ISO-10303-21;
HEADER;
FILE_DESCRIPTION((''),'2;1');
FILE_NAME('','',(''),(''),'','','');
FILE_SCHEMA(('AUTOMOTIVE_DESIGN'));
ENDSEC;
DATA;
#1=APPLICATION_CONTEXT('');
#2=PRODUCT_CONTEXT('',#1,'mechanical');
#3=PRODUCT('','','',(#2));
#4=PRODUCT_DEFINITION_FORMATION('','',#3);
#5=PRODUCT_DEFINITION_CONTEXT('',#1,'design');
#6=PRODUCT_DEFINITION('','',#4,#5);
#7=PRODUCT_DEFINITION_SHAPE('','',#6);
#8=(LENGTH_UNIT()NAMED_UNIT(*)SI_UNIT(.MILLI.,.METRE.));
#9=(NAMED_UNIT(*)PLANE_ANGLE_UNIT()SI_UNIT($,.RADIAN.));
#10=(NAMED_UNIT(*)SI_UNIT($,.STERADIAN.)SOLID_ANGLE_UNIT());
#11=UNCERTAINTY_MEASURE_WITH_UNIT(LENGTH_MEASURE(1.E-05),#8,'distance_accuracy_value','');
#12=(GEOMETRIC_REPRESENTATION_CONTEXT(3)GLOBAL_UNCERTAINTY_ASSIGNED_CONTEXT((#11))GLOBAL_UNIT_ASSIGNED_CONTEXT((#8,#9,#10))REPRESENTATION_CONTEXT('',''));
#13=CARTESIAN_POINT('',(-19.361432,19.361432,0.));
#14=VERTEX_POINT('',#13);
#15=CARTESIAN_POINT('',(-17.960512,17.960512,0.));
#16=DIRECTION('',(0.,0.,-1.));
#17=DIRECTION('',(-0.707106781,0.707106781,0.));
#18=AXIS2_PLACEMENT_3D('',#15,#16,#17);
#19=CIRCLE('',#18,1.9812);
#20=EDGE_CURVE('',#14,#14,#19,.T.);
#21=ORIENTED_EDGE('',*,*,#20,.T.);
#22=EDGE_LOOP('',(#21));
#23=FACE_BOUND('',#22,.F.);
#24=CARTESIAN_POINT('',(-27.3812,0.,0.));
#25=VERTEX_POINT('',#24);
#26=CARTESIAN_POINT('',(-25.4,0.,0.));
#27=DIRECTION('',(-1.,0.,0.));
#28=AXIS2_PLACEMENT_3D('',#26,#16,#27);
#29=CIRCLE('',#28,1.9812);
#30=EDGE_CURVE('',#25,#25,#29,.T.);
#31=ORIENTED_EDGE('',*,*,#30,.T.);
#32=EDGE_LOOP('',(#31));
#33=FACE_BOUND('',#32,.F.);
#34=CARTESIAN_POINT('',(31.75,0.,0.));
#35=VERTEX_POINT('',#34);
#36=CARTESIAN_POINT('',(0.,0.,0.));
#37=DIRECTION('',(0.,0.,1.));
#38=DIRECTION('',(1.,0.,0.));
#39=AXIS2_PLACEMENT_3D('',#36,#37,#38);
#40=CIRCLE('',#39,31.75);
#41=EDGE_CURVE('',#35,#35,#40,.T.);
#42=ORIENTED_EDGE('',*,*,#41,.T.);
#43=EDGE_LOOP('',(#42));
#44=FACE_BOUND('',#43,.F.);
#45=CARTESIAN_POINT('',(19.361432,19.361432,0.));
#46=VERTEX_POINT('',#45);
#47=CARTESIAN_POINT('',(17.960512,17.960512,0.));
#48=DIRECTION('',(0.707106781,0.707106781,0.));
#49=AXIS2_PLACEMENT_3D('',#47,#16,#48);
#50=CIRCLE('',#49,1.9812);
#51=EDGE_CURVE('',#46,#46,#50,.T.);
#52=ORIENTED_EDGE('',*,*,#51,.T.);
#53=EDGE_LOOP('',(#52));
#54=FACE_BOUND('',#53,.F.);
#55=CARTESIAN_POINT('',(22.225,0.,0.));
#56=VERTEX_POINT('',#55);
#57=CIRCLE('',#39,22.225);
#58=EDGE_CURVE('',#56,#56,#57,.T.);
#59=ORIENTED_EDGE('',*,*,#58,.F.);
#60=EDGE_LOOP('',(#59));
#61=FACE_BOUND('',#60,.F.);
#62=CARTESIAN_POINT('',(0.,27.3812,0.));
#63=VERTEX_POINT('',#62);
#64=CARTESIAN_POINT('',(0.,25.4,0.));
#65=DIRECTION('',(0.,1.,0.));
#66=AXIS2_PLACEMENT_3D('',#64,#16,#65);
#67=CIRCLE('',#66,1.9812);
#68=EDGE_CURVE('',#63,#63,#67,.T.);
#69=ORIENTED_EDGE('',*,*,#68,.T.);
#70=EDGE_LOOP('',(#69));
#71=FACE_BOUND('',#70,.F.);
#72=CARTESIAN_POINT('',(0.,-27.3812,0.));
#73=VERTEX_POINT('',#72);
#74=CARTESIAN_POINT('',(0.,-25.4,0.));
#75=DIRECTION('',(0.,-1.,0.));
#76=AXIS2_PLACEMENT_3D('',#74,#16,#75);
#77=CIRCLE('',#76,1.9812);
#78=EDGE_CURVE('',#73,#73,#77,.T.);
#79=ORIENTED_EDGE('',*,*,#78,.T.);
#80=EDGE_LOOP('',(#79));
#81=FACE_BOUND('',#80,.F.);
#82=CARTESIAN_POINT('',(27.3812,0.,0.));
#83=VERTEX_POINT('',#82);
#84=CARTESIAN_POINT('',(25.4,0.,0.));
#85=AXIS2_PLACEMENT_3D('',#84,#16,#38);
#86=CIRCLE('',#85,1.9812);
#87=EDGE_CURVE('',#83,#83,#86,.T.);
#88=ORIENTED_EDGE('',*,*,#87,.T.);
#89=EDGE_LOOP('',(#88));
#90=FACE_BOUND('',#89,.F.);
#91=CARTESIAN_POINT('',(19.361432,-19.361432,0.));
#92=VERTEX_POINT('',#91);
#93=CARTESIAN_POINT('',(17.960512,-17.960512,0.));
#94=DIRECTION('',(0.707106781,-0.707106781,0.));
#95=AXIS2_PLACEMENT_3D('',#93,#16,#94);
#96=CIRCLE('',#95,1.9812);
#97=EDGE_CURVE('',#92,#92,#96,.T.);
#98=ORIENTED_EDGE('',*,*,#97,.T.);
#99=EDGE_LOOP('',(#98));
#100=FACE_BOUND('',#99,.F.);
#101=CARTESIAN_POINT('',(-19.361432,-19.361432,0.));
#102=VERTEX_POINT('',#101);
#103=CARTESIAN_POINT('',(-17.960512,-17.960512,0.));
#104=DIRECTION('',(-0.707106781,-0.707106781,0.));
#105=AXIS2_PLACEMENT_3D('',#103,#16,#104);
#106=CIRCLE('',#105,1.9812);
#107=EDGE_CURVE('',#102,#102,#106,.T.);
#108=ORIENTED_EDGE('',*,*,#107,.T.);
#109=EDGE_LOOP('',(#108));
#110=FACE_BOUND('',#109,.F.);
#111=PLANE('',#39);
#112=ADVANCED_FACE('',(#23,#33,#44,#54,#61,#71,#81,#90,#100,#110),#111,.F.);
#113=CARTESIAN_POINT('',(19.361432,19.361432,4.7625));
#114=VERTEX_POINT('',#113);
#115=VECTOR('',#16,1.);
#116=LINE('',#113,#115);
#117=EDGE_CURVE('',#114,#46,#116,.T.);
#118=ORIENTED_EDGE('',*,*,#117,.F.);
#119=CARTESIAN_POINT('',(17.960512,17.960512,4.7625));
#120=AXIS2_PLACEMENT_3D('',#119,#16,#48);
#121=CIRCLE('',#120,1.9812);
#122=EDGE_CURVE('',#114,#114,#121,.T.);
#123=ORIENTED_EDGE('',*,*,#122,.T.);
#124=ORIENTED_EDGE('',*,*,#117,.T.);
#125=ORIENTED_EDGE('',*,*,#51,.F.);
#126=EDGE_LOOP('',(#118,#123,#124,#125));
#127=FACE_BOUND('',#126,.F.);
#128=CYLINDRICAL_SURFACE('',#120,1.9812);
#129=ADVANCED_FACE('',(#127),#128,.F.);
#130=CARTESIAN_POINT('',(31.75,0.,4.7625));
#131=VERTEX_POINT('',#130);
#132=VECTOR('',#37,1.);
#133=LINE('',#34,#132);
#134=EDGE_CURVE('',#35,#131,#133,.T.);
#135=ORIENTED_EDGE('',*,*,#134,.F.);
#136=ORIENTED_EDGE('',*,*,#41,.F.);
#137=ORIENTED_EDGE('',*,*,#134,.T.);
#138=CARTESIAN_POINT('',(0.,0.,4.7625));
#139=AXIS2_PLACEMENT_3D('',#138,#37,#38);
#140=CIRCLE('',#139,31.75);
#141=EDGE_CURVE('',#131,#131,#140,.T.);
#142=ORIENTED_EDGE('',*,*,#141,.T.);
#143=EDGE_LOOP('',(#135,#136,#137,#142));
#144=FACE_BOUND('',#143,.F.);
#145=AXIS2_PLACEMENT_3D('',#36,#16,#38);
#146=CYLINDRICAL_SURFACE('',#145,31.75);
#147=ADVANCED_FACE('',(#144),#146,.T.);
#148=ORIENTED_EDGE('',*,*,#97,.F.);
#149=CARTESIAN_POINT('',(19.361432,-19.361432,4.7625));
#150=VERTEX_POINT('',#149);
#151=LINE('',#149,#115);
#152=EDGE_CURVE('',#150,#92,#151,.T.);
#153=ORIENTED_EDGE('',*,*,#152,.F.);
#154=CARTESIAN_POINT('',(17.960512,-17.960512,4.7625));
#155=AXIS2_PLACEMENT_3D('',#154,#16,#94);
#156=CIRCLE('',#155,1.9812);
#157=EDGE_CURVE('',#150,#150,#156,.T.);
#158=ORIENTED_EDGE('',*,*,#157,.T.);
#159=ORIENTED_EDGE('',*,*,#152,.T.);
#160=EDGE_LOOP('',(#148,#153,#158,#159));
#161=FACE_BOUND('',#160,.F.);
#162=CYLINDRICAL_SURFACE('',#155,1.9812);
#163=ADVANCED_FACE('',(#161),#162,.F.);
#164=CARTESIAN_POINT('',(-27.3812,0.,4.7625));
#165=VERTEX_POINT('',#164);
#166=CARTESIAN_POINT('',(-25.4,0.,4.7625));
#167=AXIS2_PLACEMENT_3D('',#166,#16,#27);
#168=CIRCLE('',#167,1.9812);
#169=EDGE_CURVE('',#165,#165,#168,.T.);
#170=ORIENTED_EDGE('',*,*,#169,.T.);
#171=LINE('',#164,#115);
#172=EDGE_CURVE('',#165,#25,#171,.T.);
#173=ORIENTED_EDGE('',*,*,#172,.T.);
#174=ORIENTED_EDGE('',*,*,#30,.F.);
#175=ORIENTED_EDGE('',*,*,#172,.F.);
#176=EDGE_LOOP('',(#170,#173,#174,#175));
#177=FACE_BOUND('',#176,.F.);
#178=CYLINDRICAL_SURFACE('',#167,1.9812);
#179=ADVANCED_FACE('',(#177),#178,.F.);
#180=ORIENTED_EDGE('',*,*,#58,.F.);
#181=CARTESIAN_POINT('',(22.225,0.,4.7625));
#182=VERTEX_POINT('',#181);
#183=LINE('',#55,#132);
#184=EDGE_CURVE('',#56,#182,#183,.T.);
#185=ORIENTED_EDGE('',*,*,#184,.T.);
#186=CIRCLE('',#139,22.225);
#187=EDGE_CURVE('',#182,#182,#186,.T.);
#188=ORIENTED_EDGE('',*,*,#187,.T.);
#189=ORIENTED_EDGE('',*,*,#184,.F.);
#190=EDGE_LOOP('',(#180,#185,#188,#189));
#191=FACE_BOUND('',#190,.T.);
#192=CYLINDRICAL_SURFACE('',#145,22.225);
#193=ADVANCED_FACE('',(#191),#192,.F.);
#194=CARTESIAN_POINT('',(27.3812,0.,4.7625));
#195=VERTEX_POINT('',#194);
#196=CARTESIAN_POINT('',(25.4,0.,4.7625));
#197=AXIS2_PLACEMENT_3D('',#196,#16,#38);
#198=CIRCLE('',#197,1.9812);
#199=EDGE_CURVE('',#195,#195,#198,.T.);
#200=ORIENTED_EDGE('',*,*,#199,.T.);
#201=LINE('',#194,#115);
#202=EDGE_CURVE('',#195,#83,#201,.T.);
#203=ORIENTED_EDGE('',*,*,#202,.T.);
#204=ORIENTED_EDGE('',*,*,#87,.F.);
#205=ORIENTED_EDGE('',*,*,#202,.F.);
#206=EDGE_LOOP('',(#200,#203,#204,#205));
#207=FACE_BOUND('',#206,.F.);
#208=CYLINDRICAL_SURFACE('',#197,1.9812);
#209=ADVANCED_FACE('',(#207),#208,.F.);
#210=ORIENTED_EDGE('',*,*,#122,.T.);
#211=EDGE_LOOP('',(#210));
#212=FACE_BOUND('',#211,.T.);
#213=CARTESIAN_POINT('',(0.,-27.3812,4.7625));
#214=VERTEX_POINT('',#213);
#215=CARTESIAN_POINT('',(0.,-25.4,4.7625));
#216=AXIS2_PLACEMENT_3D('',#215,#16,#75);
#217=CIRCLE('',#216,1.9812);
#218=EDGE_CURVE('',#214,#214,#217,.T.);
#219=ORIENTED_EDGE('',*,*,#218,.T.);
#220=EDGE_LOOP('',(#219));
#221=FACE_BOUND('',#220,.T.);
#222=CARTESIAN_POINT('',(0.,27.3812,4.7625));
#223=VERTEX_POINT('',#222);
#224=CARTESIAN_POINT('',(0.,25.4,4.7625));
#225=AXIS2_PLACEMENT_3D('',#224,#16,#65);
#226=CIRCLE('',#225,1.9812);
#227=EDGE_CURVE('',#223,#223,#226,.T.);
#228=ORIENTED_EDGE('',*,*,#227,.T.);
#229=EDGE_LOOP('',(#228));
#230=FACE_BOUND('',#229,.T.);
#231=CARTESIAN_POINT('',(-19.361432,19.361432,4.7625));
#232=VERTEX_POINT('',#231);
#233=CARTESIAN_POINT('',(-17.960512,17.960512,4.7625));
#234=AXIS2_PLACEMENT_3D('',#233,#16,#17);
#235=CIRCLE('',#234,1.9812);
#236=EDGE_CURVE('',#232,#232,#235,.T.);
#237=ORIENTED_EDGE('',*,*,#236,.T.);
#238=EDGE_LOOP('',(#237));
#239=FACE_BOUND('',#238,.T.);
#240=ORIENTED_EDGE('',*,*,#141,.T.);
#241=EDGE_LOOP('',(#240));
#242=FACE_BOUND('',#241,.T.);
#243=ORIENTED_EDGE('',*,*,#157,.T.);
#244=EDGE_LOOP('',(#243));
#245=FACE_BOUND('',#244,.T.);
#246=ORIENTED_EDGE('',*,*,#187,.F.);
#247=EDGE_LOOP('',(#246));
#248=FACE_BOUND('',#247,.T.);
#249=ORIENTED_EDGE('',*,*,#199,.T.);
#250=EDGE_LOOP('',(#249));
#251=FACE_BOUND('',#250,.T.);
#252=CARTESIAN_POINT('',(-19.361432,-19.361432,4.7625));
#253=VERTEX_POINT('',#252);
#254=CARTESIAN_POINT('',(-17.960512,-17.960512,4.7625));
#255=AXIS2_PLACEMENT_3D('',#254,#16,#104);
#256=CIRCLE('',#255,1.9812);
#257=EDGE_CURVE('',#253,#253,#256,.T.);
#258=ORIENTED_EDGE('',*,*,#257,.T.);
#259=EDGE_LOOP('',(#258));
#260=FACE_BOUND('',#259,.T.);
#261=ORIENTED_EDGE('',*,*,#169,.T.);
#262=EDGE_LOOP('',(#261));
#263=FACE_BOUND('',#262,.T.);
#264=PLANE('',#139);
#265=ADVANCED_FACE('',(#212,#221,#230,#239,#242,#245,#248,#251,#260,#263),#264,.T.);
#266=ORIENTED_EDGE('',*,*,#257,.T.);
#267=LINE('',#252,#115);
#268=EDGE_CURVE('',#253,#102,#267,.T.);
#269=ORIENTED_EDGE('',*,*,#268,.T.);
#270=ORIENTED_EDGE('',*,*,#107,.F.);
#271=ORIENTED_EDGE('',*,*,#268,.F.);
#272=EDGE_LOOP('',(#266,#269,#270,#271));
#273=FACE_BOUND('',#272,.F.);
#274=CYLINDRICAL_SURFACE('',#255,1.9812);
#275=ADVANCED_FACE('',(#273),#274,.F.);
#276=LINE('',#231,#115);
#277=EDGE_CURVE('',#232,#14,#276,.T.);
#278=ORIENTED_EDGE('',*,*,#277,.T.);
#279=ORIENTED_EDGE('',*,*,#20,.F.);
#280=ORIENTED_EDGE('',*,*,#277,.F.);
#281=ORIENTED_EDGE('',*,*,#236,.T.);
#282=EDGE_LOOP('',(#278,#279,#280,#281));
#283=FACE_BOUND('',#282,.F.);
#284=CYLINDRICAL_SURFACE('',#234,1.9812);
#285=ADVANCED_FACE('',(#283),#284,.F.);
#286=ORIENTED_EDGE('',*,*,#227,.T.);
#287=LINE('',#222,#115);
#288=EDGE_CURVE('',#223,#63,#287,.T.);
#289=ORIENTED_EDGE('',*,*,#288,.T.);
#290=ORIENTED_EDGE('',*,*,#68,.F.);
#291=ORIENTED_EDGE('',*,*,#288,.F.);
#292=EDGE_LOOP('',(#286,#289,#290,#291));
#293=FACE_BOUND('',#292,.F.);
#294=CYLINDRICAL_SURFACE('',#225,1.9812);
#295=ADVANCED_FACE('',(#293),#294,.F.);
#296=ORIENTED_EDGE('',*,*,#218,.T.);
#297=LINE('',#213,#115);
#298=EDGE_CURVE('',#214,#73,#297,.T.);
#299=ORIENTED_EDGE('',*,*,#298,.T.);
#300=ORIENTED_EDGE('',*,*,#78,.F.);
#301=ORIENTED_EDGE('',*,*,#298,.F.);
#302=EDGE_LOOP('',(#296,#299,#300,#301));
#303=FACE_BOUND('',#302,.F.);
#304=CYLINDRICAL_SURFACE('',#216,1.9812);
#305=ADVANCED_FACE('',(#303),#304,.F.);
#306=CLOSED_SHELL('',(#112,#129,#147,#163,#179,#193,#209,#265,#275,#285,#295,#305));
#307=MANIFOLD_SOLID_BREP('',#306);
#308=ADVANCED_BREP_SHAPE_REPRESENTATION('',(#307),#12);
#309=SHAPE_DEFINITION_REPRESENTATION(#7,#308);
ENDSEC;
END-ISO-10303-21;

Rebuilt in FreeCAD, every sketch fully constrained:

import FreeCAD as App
import Part
import Sketcher

V = App.Vector
Q = App.Units.Quantity

doc = App.newDocument("Part")
body = doc.addObject("PartDesign::Body", "Body")

# Sketch on XY plane
sketch1 = doc.addObject("Sketcher::SketchObject", "Sketch")
body.addObject(sketch1)
sketch1.AttachmentSupport = (doc.XY_Plane, [""])
sketch1.MapMode = "FlatFace"
sketch1.addGeometry(Part.Circle(V(0, 0, 0), V(0, 0, 1), 32), False)
sketch1.addGeometry(Part.Circle(V(0, 0, 0), V(0, 0, 1), 22), False)
sketch1.addConstraint(Sketcher.Constraint("Coincident", 0, 3, -1, 1))
sketch1.addConstraint(Sketcher.Constraint("Coincident", 1, 3, -1, 1))
sketch1.addConstraint(Sketcher.Constraint("Diameter", 1, Q("1.75 in")))
sketch1.addConstraint(Sketcher.Constraint("Diameter", 0, Q("2.5 in")))
pad1 = doc.addObject("PartDesign::Pad", "Pad")
body.addObject(pad1)
pad1.Profile = sketch1
pad1.Length = Q("0.1875 in")

# Sketch on XY plane
sketch2 = doc.addObject("Sketcher::SketchObject", "Sketch001")
body.addObject(sketch2)
sketch2.AttachmentSupport = (doc.XY_Plane, [""])
sketch2.MapMode = "FlatFace"
sketch2.AttachmentOffset = App.Placement(V(0, 0, 0.1875 * 25.4), App.Rotation())
sketch2.addGeometry(Part.Circle(V(0, -25.4, 0), V(0, 0, 1), 2), False)
sketch2.addConstraint(Sketcher.Constraint("PointOnObject", 0, 3, -2))
sketch2.addConstraint(Sketcher.Constraint("Diameter", 0, Q("0.156 in")))
sketch2.addConstraint(Sketcher.Constraint("DistanceY", 0, 3, -1, 1, Q("1 in")))
doc.recompute()
hole = doc.addObject("PartDesign::Hole", "Hole")
body.addObject(hole)
hole.Profile = sketch2
hole.ThreadType = "None"
hole.Diameter = Q("0.156 in")
hole.DepthType = "ThroughAll"
doc.recompute()

polarpattern = doc.addObject("PartDesign::PolarPattern", "PolarPattern")
body.addObject(polarpattern)
polarpattern.Originals = [hole]
polarpattern.Axis = (doc.Z_Axis, [""])
polarpattern.Angle = 360
polarpattern.Occurrences = 8
body.Tip = polarpattern

doc.recompute()
